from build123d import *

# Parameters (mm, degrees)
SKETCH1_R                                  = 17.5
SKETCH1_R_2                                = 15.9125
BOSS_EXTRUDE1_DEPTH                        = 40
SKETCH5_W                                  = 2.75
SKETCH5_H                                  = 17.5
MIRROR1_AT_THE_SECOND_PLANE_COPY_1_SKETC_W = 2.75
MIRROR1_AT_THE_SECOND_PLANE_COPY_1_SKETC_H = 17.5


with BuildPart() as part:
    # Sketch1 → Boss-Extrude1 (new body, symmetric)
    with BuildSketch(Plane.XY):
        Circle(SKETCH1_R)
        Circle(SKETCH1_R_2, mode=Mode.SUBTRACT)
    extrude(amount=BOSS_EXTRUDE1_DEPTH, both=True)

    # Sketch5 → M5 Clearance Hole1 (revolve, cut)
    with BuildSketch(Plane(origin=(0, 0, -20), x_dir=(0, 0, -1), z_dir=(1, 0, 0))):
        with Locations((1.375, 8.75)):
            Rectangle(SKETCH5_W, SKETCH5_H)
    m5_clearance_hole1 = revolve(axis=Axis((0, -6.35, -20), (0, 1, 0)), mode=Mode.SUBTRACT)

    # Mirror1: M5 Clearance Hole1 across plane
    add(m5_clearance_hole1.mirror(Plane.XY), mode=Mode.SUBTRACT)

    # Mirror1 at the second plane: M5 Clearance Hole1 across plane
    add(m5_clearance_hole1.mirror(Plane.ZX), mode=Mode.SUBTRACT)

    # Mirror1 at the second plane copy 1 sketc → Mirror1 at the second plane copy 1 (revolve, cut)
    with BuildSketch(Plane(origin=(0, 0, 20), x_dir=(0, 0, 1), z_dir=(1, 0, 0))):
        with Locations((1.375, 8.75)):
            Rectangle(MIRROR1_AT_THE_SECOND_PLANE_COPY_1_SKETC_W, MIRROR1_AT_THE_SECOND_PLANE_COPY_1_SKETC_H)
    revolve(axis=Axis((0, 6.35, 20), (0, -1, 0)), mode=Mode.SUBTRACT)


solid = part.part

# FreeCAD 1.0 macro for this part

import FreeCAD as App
import Part
import Sketcher

V = App.Vector
Q = App.Units.Quantity


def add_polygon(sketch, points):
    """Adds a closed chain of lines whose ends are joined by coincident constraints."""
    first, n = sketch.GeometryCount, len(points)
    for a, b in zip(points, points[1:] + points[:1]):
        sketch.addGeometry(Part.LineSegment(App.Vector(*a, 0), App.Vector(*b, 0)), False)
    for i in range(n):
        sketch.addConstraint(Sketcher.Constraint("Coincident", first + i, 2, first + (i + 1) % n, 1))

doc = App.newDocument("Part")
body = doc.addObject("PartDesign::Body", "Body")

# Sketch on XY plane
sketch1 = doc.addObject("Sketcher::SketchObject", "Sketch")
body.addObject(sketch1)
sketch1.AttachmentSupport = (doc.XY_Plane, [""])
sketch1.MapMode = "FlatFace"
sketch1.addGeometry([
    Part.Circle(V(0, 0, 0), V(0, 0, 1), 18),
    Part.Circle(V(0, 0, 0), V(0, 0, 1), 16),
], False)
sketch1.addConstraint([
    Sketcher.Constraint("Coincident", 0, 3, -1, 1),
    Sketcher.Constraint("Coincident", 1, 3, -1, 1),
    Sketcher.Constraint("Diameter", 0, Q("35 mm")),
    Sketcher.Constraint("Diameter", 1, Q("31.825 mm")),
])
pad1 = doc.addObject("PartDesign::Pad", "Pad")
body.addObject(pad1)
pad1.Profile = sketch1
pad1.Length = 80
pad1.Midplane = True

# Sketch on YZ plane
sketch2 = doc.addObject("Sketcher::SketchObject", "Sketch001")
body.addObject(sketch2)
sketch2.AttachmentSupport = (doc.YZ_Plane, [""])
sketch2.MapMode = "FlatFace"
add_polygon(sketch2, [(17.5, -20), (0, -20), (0, -22.8), (17.5, -22.8)])  # lines 0-3
sketch2.addGeometry(Part.LineSegment(V(0, -20, 0), V(17.5, -20, 0)), True)  # axis
sketch2.addConstraint([
    Sketcher.Constraint("Horizontal", 0),
    Sketcher.Constraint("Vertical", 1),
    Sketcher.Constraint("Horizontal", 2),
    Sketcher.Constraint("Vertical", 3),
    Sketcher.Constraint("Horizontal", 4),
    Sketcher.Constraint("Coincident", 4, 1, 0, 2),
    Sketcher.Constraint("PointOnObject", 0, 2, -2),
    Sketcher.Constraint("Vertical", 2, 2, 4, 2),
    Sketcher.Constraint("DistanceX", 0, 2, 0, 1, Q("17.5 mm")),
    Sketcher.Constraint("DistanceY", 0, 2, -1, 1, Q("20 mm")),
    Sketcher.Constraint("DistanceY", 1, 2, 1, 1, Q("2.75 mm")),
])
groove = doc.addObject("PartDesign::Groove", "Groove")
body.addObject(groove)
groove.Profile = sketch2
groove.ReferenceAxis = (sketch2, ["Axis0"])
groove.Angle = 360
doc.recompute()

mirrored = doc.addObject("PartDesign::Mirrored", "Mirrored")
body.addObject(mirrored)
mirrored.Originals = [groove]
mirrored.MirrorPlane = (doc.XY_Plane, [""])
body.Tip = mirrored
doc.recompute()

mirrored2 = doc.addObject("PartDesign::Mirrored", "Mirrored001")
body.addObject(mirrored2)
mirrored2.Originals = [groove]
mirrored2.MirrorPlane = (doc.XZ_Plane, [""])
body.Tip = mirrored2

# Sketch on YZ plane
sketch3 = doc.addObject("Sketcher::SketchObject", "Sketch002")
body.addObject(sketch3)
sketch3.AttachmentSupport = (doc.YZ_Plane, [""])
sketch3.MapMode = "FlatFace"
add_polygon(sketch3, [(-17.5, 20), (0, 20), (0, 22.8), (-17.5, 22.8)])  # lines 0-3
sketch3.addGeometry(Part.LineSegment(V(0, 20, 0), V(-17.5, 20, 0)), True)  # axis
sketch3.addConstraint([
    Sketcher.Constraint("Horizontal", 0),
    Sketcher.Constraint("Vertical", 1),
    Sketcher.Constraint("Horizontal", 2),
    Sketcher.Constraint("Vertical", 3),
    Sketcher.Constraint("Horizontal", 4),
    Sketcher.Constraint("Coincident", 4, 1, 0, 2),
    Sketcher.Constraint("PointOnObject", 0, 2, -2),
    Sketcher.Constraint("Vertical", 2, 2, 4, 2),
    Sketcher.Constraint("DistanceX", 0, 1, 0, 2, Q("17.5 mm")),
    Sketcher.Constraint("DistanceY", -1, 1, 0, 2, Q("20 mm")),
    Sketcher.Constraint("DistanceY", 1, 1, 1, 2, Q("2.75 mm")),
])
groove2 = doc.addObject("PartDesign::Groove", "Groove001")
body.addObject(groove2)
groove2.Profile = sketch3
groove2.ReferenceAxis = (sketch3, ["Axis0"])
groove2.Angle = 360

doc.recompute()
